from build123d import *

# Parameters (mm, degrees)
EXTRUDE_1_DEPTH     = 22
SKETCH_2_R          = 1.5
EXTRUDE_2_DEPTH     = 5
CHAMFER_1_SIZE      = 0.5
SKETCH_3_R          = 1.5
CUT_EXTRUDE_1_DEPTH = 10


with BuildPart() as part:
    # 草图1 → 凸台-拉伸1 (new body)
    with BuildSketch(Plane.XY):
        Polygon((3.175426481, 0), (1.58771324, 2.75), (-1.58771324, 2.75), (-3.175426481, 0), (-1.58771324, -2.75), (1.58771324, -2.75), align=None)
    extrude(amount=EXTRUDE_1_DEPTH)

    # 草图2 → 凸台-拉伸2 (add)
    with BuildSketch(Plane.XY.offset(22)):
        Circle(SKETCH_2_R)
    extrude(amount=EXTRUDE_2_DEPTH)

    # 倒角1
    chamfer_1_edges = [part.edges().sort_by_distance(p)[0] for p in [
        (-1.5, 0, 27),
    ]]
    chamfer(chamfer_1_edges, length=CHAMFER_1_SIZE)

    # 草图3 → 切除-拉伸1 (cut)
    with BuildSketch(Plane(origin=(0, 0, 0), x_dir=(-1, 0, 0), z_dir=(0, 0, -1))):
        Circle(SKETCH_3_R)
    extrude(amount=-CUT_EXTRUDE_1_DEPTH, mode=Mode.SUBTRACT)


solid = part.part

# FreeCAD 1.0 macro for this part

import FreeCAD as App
import Part
import Sketcher
Q = App.Units.Quantity


def edges_at(feature, points):
    """Names of the edges that pass closest to the given points."""
    edges = feature.Shape.Edges
    near = lambda p: min(range(len(edges)), key=lambda i: edges[i].distToShape(Part.Vertex(*p))[0])
    return sorted({f"Edge{near(p) + 1}" for p in points})

doc = App.newDocument("Part")
body = doc.addObject("PartDesign::Body", "Body")

# Sketch on XY plane
sketch1 = doc.addObject("Sketcher::SketchObject", "Sketch")
body.addObject(sketch1)
sketch1.AttachmentSupport = (doc.XY_Plane, [""])
sketch1.MapMode = "FlatFace"
sketch1.addGeometry([
    Part.LineSegment(App.Vector(3.2, 0, 0), App.Vector(1.6, 2.8, 0)),  # 0
    Part.LineSegment(App.Vector(1.6, 2.8, 0), App.Vector(-1.6, 2.8, 0)),  # 1
    Part.LineSegment(App.Vector(-1.6, 2.8, 0), App.Vector(-3.2, 0, 0)),  # 2
    Part.LineSegment(App.Vector(-3.2, 0, 0), App.Vector(-1.6, -2.8, 0)),  # 3
    Part.LineSegment(App.Vector(-1.6, -2.8, 0), App.Vector(1.6, -2.8, 0)),  # 4
    Part.LineSegment(App.Vector(1.6, -2.8, 0), App.Vector(3.2, 0, 0)),  # 5
], False)
sketch1.addConstraint([
    Sketcher.Constraint("Coincident", 0, 2, 1, 1),
    Sketcher.Constraint("Coincident", 1, 2, 2, 1),
    Sketcher.Constraint("Coincident", 2, 2, 3, 1),
    Sketcher.Constraint("Coincident", 3, 2, 4, 1),
    Sketcher.Constraint("Coincident", 4, 2, 5, 1),
    Sketcher.Constraint("Coincident", 5, 2, 0, 1),
    Sketcher.Constraint("Horizontal", 1),
    Sketcher.Constraint("Horizontal", 4),
    Sketcher.Constraint("Symmetric", 0, 2, 3, 2, -1, 1),
    Sketcher.Constraint("Symmetric", 2, 2, 5, 2, -1, 1),
    Sketcher.Constraint("PointOnObject", 2, 2, -1),
    Sketcher.Constraint("Parallel", 2, 5),
    Sketcher.Constraint("Vertical", 1, 2, 3, 2),
    Sketcher.Constraint("Angle", 0, Q("120 deg")),
    Sketcher.Constraint("DistanceY", 3, 2, 1, 2, 5.5),
    Sketcher.Constraint("DistanceX", 1, 2, 1, 1, 3.175426),
])
pad1 = doc.addObject("PartDesign::Pad", "Pad")
body.addObject(pad1)
pad1.Profile = sketch1
pad1.Length = 22

# Sketch on XY plane
sketch2 = doc.addObject("Sketcher::SketchObject", "Sketch001")
body.addObject(sketch2)
sketch2.AttachmentSupport = (doc.XY_Plane, [""])
sketch2.MapMode = "FlatFace"
sketch2.AttachmentOffset = App.Placement(App.Vector(0, 0, 22), App.Rotation())
sketch2.addGeometry(Part.Circle(App.Vector(0, 0, 0), App.Vector(0, 0, 1), 1.5), False)
sketch2.addConstraint([
    Sketcher.Constraint("Coincident", 0, 3, -1, 1),
    Sketcher.Constraint("Diameter", 0, 3.0),
])
pad2 = doc.addObject("PartDesign::Pad", "Pad001")
body.addObject(pad2)
pad2.Profile = sketch2
pad2.Length = 5
doc.recompute()

chamfer = doc.addObject("PartDesign::Chamfer", "Chamfer")
body.addObject(chamfer)
chamfer.Base = (pad2, edges_at(pad2, [(-1.5, 0, 27)]))
chamfer.Size = 0.5

# Sketch on XY plane
sketch3 = doc.addObject("Sketcher::SketchObject", "Sketch002")
body.addObject(sketch3)
sketch3.AttachmentSupport = (doc.XY_Plane, [""])
sketch3.MapMode = "FlatFace"
sketch3.addGeometry(Part.Circle(App.Vector(0, 0, 0), App.Vector(0, 0, 1), 1.5), False)
sketch3.addConstraint([
    Sketcher.Constraint("Coincident", 0, 3, -1, 1),
    Sketcher.Constraint("Diameter", 0, 3.0),
])
pocket1 = doc.addObject("PartDesign::Pocket", "Pocket")
body.addObject(pocket1)
pocket1.Profile = sketch3
pocket1.Length = 10
pocket1.Reversed = True

doc.recompute()
